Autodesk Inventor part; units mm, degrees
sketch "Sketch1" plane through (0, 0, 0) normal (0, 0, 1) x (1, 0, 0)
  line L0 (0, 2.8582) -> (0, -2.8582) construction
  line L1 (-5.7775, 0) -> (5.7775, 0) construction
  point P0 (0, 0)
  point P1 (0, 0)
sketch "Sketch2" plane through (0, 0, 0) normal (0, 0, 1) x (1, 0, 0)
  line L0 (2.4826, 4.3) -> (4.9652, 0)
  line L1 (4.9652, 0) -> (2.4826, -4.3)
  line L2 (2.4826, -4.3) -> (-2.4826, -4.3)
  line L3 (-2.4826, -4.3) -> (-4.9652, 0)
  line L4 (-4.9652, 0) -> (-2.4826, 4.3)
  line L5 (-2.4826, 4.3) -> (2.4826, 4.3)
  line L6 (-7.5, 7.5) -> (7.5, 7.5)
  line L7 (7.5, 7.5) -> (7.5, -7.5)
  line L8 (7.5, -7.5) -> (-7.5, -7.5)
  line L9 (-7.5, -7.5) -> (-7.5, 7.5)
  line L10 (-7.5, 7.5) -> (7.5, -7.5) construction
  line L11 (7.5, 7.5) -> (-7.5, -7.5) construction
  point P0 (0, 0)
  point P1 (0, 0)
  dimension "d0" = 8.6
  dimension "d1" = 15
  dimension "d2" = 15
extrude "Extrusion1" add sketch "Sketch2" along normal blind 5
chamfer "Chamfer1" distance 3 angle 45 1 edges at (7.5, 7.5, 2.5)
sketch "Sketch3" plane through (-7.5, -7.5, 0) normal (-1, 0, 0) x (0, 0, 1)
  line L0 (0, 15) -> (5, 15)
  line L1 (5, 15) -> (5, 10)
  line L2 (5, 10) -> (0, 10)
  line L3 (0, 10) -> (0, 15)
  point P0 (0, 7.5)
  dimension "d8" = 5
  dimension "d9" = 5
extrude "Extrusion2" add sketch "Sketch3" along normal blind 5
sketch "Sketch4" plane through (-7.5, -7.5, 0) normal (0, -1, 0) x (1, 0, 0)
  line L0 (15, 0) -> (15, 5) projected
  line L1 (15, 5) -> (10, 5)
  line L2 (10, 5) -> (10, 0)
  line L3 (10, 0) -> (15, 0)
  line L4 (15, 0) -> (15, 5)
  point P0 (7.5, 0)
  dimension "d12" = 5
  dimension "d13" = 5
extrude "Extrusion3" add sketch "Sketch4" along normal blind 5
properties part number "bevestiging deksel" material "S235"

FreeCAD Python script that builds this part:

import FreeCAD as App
import Part
import Sketcher

V = App.Vector
Q = App.Units.Quantity


def edges_at(feature, points):
    """Names of the edges that pass closest to the given points."""
    edges = feature.Shape.Edges
    near = lambda p: min(range(len(edges)), key=lambda i: edges[i].distToShape(Part.Vertex(*p))[0])
    return sorted({f"Edge{near(p) + 1}" for p in points})


def add_polygon(sketch, points):
    """Adds a closed chain of lines whose ends are joined by coincident constraints."""
    first, n = sketch.GeometryCount, len(points)
    for a, b in zip(points, points[1:] + points[:1]):
        sketch.addGeometry(Part.LineSegment(App.Vector(*a, 0), App.Vector(*b, 0)), False)
    for i in range(n):
        sketch.addConstraint(Sketcher.Constraint("Coincident", first + i, 2, first + (i + 1) % n, 1))

doc = App.newDocument("Part")
params = doc.addObject("Spreadsheet::Sheet", "Params")
for row, (alias, value) in enumerate([
    ("sketch1_width", "15 mm"),
    ("pad1_length", "5 mm"),
    ("chamfer_size", "3 mm"),
    ("sketch2_width", "5 mm"),
    ("pad2_length", "5 mm"),
    ("sketch3_width", "5 mm"),
    ("pad3_length", "5 mm"),
], start=1):
    params.set(f"A{row}", alias)
    params.set(f"B{row}", "=" + value)
    params.setAlias(f"B{row}", alias)

body = doc.addObject("PartDesign::Body", "Body")

# Sketch on XY plane
sketch1 = body.newObject("Sketcher::SketchObject", "Sketch")
sketch1.AttachmentSupport = (doc.getObject("XY_Plane"), [""])
sketch1.MapMode = "FlatFace"
add_polygon(sketch1, [(7.5, 7.5), (-7.5, 7.5), (-7.5, -7.5), (7.5, -7.5)])  # lines 0-3
add_polygon(sketch1, [(-2.4826, 4.3), (2.4826, 4.3), (4.9652, 0), (2.4826, -4.3), (-2.4826, -4.3), (-4.9652, 0)])  # lines 4-9
sketch1.addConstraint([
    Sketcher.Constraint("Horizontal", 0),
    Sketcher.Constraint("Vertical", 1),
    Sketcher.Constraint("Horizontal", 2),
    Sketcher.Constraint("Vertical", 3),
    Sketcher.Constraint("Horizontal", 4),
    Sketcher.Constraint("Horizontal", 7),
    Sketcher.Constraint("Symmetric", 0, 2, 2, 2, -1, 1),
    Sketcher.Constraint("Symmetric", 4, 2, 7, 2, -1, 1),
    Sketcher.Constraint("Symmetric", 5, 2, 8, 2, -1, 1),
    Sketcher.Constraint("PointOnObject", 5, 2, -1),
    Sketcher.Constraint("Parallel", 6, 9),
    Sketcher.Constraint("Vertical", 4, 2, 6, 2),
    Sketcher.Constraint("Equal", 2, 1),
    Sketcher.Constraint("DistanceX", 0, 2, 0, 1, Q("15 mm")),
    Sketcher.Constraint("DistanceY", 6, 2, 4, 2, Q("8.6 mm")),
    Sketcher.Constraint("Angle", 5, Q("-60 deg")),
    Sketcher.Constraint("DistanceX", 4, 1, 4, 2, Q("4.9652 mm")),
])
sketch1.setExpression("Constraints[23]", "Params.sketch1_width")
pad1 = body.newObject("PartDesign::Pad", "Pad")
pad1.Profile = sketch1
pad1.setExpression("Length", "Params.pad1_length")
doc.recompute()

chamfer = body.newObject("PartDesign::Chamfer", "Chamfer")
chamfer.Base = (pad1, edges_at(pad1, [(7.5, 7.5, 2.5)]))
chamfer.setExpression("Size", "Params.chamfer_size")

# Sketch on YZ plane
sketch2 = body.newObject("Sketcher::SketchObject", "Sketch001")
sketch2.AttachmentSupport = (doc.getObject("YZ_Plane"), [""])
sketch2.MapMode = "FlatFace"
sketch2.AttachmentOffset = App.Placement(V(0, 0, -7.5), App.Rotation())
add_polygon(sketch2, [(7.5, 5), (7.5, 0), (2.5, 0), (2.5, 5)])  # lines 0-3
sketch2.addConstraint([
    Sketcher.Constraint("Vertical", 0),
    Sketcher.Constraint("Horizontal", 1),
    Sketcher.Constraint("Vertical", 2),
    Sketcher.Constraint("Horizontal", 3),
    Sketcher.Constraint("PointOnObject", 0, 2, -1),
    Sketcher.Constraint("Equal", 3, 0),
    Sketcher.Constraint("DistanceX", 1, 2, 1, 1, Q("5 mm")),
    Sketcher.Constraint("DistanceX", -1, 1, 0, 2, Q("7.5 mm")),
])
sketch2.setExpression("Constraints[10]", "Params.sketch2_width")
pad2 = body.newObject("PartDesign::Pad", "Pad001")
pad2.Profile = sketch2
pad2.setExpression("Length", "Params.pad2_length")
pad2.Reversed = True

# Sketch on XZ plane
sketch3 = body.newObject("Sketcher::SketchObject", "Sketch002")
sketch3.AttachmentSupport = (doc.getObject("XZ_Plane"), [""])
sketch3.MapMode = "FlatFace"
sketch3.AttachmentOffset = App.Placement(V(0, 0, 7.5), App.Rotation())
add_polygon(sketch3, [(2.5, 0), (7.5, 0), (7.5, 5), (2.5, 5)])  # lines 0-3
sketch3.addConstraint([
    Sketcher.Constraint("Horizontal", 0),
    Sketcher.Constraint("Vertical", 1),
    Sketcher.Constraint("Horizontal", 2),
    Sketcher.Constraint("Vertical", 3),
    Sketcher.Constraint("PointOnObject", 0, 2, -1),
    Sketcher.Constraint("Equal", 2, 1),
    Sketcher.Constraint("DistanceX", 0, 1, 0, 2, Q("5 mm")),
    Sketcher.Constraint("DistanceX", -1, 1, 0, 2, Q("7.5 mm")),
])
sketch3.setExpression("Constraints[10]", "Params.sketch3_width")
pad3 = body.newObject("PartDesign::Pad", "Pad002")
pad3.Profile = sketch3
pad3.setExpression("Length", "Params.pad3_length")

doc.recompute()
